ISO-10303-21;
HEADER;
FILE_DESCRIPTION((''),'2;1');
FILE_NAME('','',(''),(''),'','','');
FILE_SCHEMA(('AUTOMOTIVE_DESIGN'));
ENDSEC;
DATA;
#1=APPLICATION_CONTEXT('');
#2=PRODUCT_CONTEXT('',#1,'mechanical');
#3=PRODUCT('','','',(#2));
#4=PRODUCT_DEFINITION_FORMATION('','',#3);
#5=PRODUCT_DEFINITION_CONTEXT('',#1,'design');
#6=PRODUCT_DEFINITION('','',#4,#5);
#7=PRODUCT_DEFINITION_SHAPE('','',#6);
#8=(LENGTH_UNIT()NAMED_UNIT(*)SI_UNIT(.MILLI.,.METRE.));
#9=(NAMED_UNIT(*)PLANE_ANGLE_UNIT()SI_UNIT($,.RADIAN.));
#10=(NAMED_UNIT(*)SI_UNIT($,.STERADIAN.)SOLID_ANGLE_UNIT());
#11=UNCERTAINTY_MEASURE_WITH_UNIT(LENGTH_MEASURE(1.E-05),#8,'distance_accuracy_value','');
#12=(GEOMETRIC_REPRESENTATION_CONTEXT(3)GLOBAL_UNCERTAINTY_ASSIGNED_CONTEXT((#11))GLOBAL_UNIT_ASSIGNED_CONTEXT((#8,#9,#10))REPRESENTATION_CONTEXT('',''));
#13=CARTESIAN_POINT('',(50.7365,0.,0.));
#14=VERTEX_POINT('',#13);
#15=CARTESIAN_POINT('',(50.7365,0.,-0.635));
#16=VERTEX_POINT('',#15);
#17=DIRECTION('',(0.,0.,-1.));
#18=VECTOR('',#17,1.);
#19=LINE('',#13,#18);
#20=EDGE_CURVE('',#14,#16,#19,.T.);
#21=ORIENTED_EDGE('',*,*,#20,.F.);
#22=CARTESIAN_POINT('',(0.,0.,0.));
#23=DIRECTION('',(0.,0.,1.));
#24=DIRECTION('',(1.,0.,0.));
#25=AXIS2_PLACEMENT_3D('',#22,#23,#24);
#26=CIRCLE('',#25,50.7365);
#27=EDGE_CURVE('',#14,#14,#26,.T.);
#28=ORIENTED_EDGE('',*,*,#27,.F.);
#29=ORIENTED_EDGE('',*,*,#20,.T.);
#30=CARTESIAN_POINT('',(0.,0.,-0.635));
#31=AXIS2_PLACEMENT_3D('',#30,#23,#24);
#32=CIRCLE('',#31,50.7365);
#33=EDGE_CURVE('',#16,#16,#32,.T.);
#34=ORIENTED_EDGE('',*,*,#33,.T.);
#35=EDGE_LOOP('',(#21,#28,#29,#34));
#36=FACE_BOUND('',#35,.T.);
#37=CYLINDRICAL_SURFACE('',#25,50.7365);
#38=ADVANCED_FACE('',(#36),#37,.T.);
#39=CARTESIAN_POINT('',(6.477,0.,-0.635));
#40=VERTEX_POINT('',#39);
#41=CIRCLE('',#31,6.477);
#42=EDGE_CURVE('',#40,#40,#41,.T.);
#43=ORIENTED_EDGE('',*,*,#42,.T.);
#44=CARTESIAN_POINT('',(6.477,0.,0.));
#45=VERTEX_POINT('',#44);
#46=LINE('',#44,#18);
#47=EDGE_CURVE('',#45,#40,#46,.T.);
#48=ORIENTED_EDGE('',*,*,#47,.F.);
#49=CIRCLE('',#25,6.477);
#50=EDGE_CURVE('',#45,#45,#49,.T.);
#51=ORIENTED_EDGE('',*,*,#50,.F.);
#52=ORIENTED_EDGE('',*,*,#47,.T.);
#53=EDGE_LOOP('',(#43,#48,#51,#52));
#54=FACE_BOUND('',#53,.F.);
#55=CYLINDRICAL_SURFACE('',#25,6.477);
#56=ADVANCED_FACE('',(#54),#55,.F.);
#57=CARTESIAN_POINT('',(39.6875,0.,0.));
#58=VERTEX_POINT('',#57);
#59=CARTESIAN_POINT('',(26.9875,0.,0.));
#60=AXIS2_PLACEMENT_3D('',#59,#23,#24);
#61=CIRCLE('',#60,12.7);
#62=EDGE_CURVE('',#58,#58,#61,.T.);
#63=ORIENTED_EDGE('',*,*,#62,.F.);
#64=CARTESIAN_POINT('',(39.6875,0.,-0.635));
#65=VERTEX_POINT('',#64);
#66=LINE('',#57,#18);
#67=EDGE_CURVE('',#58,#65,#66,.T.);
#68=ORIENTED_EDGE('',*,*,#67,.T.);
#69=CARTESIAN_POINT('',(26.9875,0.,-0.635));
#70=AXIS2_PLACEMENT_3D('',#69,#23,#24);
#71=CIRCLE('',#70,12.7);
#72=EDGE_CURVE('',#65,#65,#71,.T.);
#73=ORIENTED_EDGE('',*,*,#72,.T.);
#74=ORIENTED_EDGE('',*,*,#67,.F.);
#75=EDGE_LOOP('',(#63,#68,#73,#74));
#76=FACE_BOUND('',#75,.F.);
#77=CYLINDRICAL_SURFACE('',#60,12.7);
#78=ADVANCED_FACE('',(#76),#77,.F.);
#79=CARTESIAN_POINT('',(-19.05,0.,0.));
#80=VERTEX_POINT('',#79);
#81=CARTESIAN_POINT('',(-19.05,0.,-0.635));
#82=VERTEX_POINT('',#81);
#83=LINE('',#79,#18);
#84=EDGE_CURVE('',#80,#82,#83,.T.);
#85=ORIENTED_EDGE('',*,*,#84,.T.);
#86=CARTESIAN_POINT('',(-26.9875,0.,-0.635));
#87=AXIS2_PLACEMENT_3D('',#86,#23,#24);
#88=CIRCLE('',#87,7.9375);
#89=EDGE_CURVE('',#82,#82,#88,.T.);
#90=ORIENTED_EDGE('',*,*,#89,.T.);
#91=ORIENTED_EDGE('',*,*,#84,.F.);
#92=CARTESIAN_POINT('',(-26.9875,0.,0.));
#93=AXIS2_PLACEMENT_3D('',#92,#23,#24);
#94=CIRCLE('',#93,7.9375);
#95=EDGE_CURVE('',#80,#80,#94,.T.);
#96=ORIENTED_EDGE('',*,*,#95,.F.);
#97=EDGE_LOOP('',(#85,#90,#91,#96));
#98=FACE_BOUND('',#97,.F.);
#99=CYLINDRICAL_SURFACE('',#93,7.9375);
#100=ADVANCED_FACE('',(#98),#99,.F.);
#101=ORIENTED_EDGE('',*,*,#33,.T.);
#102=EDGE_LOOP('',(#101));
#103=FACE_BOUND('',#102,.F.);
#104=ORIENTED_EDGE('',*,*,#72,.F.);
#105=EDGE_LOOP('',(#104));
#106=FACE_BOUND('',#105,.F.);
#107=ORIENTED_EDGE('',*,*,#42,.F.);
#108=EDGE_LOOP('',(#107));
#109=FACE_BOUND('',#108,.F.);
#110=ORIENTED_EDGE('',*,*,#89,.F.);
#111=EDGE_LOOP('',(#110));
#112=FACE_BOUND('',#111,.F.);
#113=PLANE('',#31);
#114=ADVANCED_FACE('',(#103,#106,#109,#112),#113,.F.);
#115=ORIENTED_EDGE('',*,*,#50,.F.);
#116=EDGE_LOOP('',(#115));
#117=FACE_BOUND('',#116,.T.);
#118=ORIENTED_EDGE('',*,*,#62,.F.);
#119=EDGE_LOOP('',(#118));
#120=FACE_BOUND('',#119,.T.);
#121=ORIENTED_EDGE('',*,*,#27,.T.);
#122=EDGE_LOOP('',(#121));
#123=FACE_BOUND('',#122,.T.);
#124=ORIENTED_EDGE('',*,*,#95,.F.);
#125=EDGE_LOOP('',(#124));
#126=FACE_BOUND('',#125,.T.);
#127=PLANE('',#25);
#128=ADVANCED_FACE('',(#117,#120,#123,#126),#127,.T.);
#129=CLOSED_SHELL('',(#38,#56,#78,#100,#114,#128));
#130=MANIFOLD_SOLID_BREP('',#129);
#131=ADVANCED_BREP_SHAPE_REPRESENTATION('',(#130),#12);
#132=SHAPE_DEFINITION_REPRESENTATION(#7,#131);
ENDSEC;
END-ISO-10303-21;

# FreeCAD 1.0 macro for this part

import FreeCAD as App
import Part
import Sketcher

V = App.Vector
Q = App.Units.Quantity

doc = App.newDocument("Part")
body = doc.addObject("PartDesign::Body", "Body")

sketch1 = body.newObject("Sketcher::SketchObject", "Sketch")
sketch1.AttachmentSupport = (doc.getObject("XY_Plane"), [""])
sketch1.MapMode = "FlatFace"
sketch1.addGeometry([
    Part.Circle(V(0, 0, 0), V(0, 0, 1), 51),
    Part.Circle(V(-27, 0, 0), V(0, 0, 1), 8),
    Part.Circle(V(0, 0, 0), V(0, 0, 1), 6),
    Part.Circle(V(27, 0, 0), V(0, 0, 1), 13),
], False)
sketch1.addConstraint([
    Sketcher.Constraint("Coincident", 0, 3, -1, 1),
    Sketcher.Constraint("Coincident", 2, 3, -1, 1),
    Sketcher.Constraint("Symmetric", 1, 3, 3, 3, -1, 1),
    Sketcher.Constraint("PointOnObject", 1, 3, -1),
    Sketcher.Constraint("Diameter", 3, Q("1 in")),
    Sketcher.Constraint("Diameter", 2, Q("0.51 in")),
    Sketcher.Constraint("Diameter", 0, Q("3.995 in")),
    Sketcher.Constraint("Diameter", 1, Q("0.625 in")),
    Sketcher.Constraint("DistanceX", 1, 3, -1, 1, Q("1.0625 in")),
])
pad1 = body.newObject("PartDesign::Pad", "Pad")
pad1.Profile = sketch1
pad1.Length = Q("0.025 in")
pad1.Reversed = True

doc.recompute()
